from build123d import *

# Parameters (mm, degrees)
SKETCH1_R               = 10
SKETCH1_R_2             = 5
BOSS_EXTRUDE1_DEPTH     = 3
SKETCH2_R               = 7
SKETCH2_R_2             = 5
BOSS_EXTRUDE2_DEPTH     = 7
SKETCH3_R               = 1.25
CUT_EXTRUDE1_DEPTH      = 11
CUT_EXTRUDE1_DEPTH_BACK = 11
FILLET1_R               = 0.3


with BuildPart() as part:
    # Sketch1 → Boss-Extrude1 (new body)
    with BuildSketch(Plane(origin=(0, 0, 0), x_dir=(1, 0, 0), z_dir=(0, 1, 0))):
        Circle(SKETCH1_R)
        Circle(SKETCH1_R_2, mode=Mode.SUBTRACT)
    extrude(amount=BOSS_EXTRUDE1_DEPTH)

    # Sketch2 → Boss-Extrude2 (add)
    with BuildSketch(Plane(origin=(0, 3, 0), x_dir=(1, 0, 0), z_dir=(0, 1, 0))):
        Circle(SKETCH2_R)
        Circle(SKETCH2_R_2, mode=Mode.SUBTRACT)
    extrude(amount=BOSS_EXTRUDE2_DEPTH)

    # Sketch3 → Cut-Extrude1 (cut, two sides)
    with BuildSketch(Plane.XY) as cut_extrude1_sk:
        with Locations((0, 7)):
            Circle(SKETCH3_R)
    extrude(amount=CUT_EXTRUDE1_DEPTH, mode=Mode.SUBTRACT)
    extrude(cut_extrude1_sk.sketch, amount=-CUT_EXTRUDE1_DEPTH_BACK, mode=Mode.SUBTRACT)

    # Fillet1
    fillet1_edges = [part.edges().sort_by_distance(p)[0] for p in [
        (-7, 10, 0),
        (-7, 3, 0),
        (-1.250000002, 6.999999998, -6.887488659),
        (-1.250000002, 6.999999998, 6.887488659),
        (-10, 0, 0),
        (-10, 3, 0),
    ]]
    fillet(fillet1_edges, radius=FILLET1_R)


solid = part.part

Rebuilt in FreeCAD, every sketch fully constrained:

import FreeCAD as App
import Part
import Sketcher
from FreeCAD import Vector
Q = App.Units.Quantity


def edges_at(feature, points):
    """Names of the edges that pass closest to the given points."""
    edges = feature.Shape.Edges
    near = lambda p: min(range(len(edges)), key=lambda i: edges[i].distToShape(Part.Vertex(*p))[0])
    return sorted({f"Edge{near(p) + 1}" for p in points})

doc = App.newDocument("Part")
body = doc.addObject("PartDesign::Body", "Body")

# Sketch on XZ plane
sketch1 = body.newObject("Sketcher::SketchObject", "Sketch")
sketch1.AttachmentSupport = (doc.getObject("XZ_Plane"), [""])
sketch1.MapMode = "FlatFace"
sketch1.addGeometry([
    Part.Circle(Vector(0, 0, 0), Vector(0, 0, 1), 10),
    Part.Circle(Vector(0, 0, 0), Vector(0, 0, 1), 5),
], False)
sketch1.addConstraint([
    Sketcher.Constraint("Coincident", 0, 3, -1, 1),
    Sketcher.Constraint("Coincident", 1, 3, -1, 1),
    Sketcher.Constraint("Diameter", 0, Q("20 mm")),
    Sketcher.Constraint("Diameter", 1, Q("10 mm")),
])
pad1 = body.newObject("PartDesign::Pad", "Pad")
pad1.Profile = sketch1
pad1.Length = 3
pad1.Reversed = True

# Sketch on XZ plane
sketch2 = body.newObject("Sketcher::SketchObject", "Sketch001")
sketch2.AttachmentSupport = (doc.getObject("XZ_Plane"), [""])
sketch2.MapMode = "FlatFace"
sketch2.AttachmentOffset = App.Placement(Vector(0, 0, -3), App.Rotation())
sketch2.addGeometry([
    Part.Circle(Vector(0, 0, 0), Vector(0, 0, 1), 7),
    Part.Circle(Vector(0, 0, 0), Vector(0, 0, 1), 5),
], False)
sketch2.addConstraint([
    Sketcher.Constraint("Coincident", 0, 3, -1, 1),
    Sketcher.Constraint("Coincident", 1, 3, -1, 1),
    Sketcher.Constraint("Diameter", 0, Q("14 mm")),
    Sketcher.Constraint("Diameter", 1, Q("10 mm")),
])
pad2 = body.newObject("PartDesign::Pad", "Pad001")
pad2.Profile = sketch2
pad2.Length = 7
pad2.Reversed = True

# Sketch on XY plane
sketch3 = body.newObject("Sketcher::SketchObject", "Sketch002")
sketch3.AttachmentSupport = (doc.getObject("XY_Plane"), [""])
sketch3.MapMode = "FlatFace"
sketch3.addGeometry(Part.Circle(Vector(0, 7, 0), Vector(0, 0, 1), 1.2), False)
sketch3.addConstraint([
    Sketcher.Constraint("PointOnObject", 0, 3, -2),
    Sketcher.Constraint("Diameter", 0, Q("2.5 mm")),
    Sketcher.Constraint("DistanceY", -1, 1, 0, 3, Q("7 mm")),
])
pocket1 = body.newObject("PartDesign::Pocket", "Pocket")
pocket1.Profile = sketch3
pocket1.Type = "ThroughAll"
pocket1.Midplane = True
doc.recompute()

fillet = body.newObject("PartDesign::Fillet", "Fillet")
fillet.Base = (pocket1, edges_at(pocket1, [
    (-7, 10, 0),
    (-7, 3, 0),
    (-1.25, 7, -6.887),
    (-1.25, 7, 6.887),
    (-10, 0, 0),
    (-10, 3, 0),
]))
fillet.Radius = 0.3

doc.recompute()
